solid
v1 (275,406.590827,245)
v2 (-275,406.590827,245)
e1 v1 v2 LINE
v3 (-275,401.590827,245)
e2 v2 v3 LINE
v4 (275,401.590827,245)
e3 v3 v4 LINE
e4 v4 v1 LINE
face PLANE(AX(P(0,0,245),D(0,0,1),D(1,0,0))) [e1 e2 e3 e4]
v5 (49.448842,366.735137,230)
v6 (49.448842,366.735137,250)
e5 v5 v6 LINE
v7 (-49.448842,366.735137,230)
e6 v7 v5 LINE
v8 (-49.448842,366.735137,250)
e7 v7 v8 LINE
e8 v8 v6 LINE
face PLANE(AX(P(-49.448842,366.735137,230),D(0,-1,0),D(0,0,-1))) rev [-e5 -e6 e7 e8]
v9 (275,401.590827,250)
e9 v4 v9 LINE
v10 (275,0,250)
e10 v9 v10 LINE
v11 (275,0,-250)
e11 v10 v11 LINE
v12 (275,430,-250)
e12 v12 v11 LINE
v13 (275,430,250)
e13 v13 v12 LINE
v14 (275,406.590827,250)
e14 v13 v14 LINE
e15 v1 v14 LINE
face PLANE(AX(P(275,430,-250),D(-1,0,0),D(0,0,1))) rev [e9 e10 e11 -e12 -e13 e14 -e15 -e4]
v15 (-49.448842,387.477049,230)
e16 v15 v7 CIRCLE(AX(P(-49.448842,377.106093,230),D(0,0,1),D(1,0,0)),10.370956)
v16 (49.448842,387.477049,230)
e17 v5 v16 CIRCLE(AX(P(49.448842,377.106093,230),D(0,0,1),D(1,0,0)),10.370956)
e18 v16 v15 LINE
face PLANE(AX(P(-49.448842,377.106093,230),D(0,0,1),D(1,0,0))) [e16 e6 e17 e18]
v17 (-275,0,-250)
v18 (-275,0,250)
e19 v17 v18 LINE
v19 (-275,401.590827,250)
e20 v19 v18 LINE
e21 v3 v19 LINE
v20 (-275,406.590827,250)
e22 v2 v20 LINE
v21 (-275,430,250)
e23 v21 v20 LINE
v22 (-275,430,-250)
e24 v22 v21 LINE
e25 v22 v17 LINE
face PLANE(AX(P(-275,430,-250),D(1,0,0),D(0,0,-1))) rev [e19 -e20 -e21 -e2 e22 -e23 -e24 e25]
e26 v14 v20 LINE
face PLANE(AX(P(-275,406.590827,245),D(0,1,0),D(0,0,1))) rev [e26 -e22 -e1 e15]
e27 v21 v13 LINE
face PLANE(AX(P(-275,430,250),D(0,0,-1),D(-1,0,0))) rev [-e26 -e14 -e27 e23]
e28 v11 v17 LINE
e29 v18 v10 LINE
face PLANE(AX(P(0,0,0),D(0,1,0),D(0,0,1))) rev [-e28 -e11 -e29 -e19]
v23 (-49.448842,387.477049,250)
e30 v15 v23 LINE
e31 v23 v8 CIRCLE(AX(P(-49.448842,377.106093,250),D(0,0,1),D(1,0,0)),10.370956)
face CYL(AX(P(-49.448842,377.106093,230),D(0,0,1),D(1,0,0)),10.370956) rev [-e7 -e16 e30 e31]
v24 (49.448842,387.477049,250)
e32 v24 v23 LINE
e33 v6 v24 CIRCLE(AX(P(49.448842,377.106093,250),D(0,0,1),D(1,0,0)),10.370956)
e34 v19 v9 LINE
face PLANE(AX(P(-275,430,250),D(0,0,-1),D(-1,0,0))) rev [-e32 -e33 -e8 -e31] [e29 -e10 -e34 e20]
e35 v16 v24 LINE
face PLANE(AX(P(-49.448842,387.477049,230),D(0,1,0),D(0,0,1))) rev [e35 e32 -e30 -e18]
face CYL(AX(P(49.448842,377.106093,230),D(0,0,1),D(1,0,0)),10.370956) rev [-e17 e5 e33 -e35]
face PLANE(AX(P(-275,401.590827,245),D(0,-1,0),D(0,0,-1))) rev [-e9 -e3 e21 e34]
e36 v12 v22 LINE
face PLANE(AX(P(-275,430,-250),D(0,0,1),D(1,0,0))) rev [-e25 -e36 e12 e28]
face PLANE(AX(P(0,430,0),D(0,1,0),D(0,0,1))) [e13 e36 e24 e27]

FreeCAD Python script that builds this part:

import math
import FreeCAD as App
import Part
import Sketcher


def add_polygon(sketch, points):
    """Adds a closed chain of lines whose ends are joined by coincident constraints."""
    first, n = sketch.GeometryCount, len(points)
    for a, b in zip(points, points[1:] + points[:1]):
        sketch.addGeometry(Part.LineSegment(App.Vector(*a, 0), App.Vector(*b, 0)), False)
    for i in range(n):
        sketch.addConstraint(Sketcher.Constraint("Coincident", first + i, 2, first + (i + 1) % n, 1))

doc = App.newDocument("Part")
params = doc.addObject("Spreadsheet::Sheet", "Params")
for row, (alias, value) in enumerate([
    ("sketch1_width", "550 mm"),
    ("sketch1_height", "500 mm"),
    ("pad1_length", "430 mm"),
    ("pocket1_length", "20 mm"),
    ("sketch3_width", "550 mm"),
    ("sketch3_height", "5 mm"),
    ("pocket2_length", "5 mm"),
], start=1):
    params.set(f"A{row}", alias)
    params.set(f"B{row}", "=" + value)
    params.setAlias(f"B{row}", alias)

body = doc.addObject("PartDesign::Body", "Body")

sketch1 = body.newObject("Sketcher::SketchObject", "Sketch")
sketch1.AttachmentSupport = (doc.getObject("XZ_Plane"), [""])
sketch1.MapMode = "FlatFace"
add_polygon(sketch1, [(-275, -250), (-275, 250), (275, 250), (275, -250)])
sketch1.addConstraint([
    Sketcher.Constraint("Vertical", 0),
    Sketcher.Constraint("Horizontal", 1),
    Sketcher.Constraint("Vertical", 2),
    Sketcher.Constraint("Horizontal", 3),
    Sketcher.Constraint("Symmetric", 0, 2, 2, 2, -1, 1),
    Sketcher.Constraint("DistanceX", 1, 1, 1, 2, 550.0),
    Sketcher.Constraint("DistanceY", 0, 1, 0, 2, 500.0),
])
sketch1.setExpression("Constraints[9]", "Params.sketch1_width")
sketch1.setExpression("Constraints[10]", "Params.sketch1_height")
pad1 = body.newObject("PartDesign::Pad", "Pad")
pad1.Profile = sketch1
pad1.setExpression("Length", "Params.pad1_length")
pad1.Reversed = True

sketch2 = body.newObject("Sketcher::SketchObject", "Sketch001")
sketch2.AttachmentSupport = (doc.getObject("XY_Plane"), [""])
sketch2.MapMode = "FlatFace"
sketch2.AttachmentOffset = App.Placement(App.Vector(0, 0, 250), App.Rotation())
sketch2.addGeometry([
    Part.LineSegment(App.Vector(49, 387, 0), App.Vector(-49, 387, 0)),
    Part.ArcOfCircle(Part.Circle(App.Vector(-49, 377, 0), App.Vector(0, 0, 1), 10), math.radians(90), math.radians(270)),
    Part.LineSegment(App.Vector(-49, 367, 0), App.Vector(49, 367, 0)),
    Part.ArcOfCircle(Part.Circle(App.Vector(49, 377, 0), App.Vector(0, 0, 1), 10), math.radians(-90), math.radians(90)),
], False)
sketch2.addConstraint([
    Sketcher.Constraint("Tangent", 0, 2, 1, 1),
    Sketcher.Constraint("Tangent", 1, 2, 2, 1),
    Sketcher.Constraint("Tangent", 2, 2, 3, 1),
    Sketcher.Constraint("Tangent", 3, 2, 0, 1),
    Sketcher.Constraint("Horizontal", 0),
    Sketcher.Constraint("Horizontal", 2),
    Sketcher.Constraint("Radius", 1, 10.370956),
    Sketcher.Constraint("DistanceX", 0, 2, 0, 1, 98.897684),
    Sketcher.Constraint("DistanceY", -1, 1, 0, 2, 387.477049),
    Sketcher.Constraint("DistanceX", 1, 3, -1, 1, 49.448842),
])
pocket1 = body.newObject("PartDesign::Pocket", "Pocket")
pocket1.Profile = sketch2
pocket1.setExpression("Length", "Params.pocket1_length")

sketch3 = body.newObject("Sketcher::SketchObject", "Sketch002")
sketch3.AttachmentSupport = (doc.getObject("XY_Plane"), [""])
sketch3.MapMode = "FlatFace"
sketch3.AttachmentOffset = App.Placement(App.Vector(0, 0, 250), App.Rotation())
add_polygon(sketch3, [(-275, 407), (-275, 402), (275, 402), (275, 407)])
sketch3.addConstraint([
    Sketcher.Constraint("Vertical", 0),
    Sketcher.Constraint("Horizontal", 1),
    Sketcher.Constraint("Vertical", 2),
    Sketcher.Constraint("Horizontal", 3),
    Sketcher.Constraint("DistanceX", 1, 1, 1, 2, 550.0),
    Sketcher.Constraint("DistanceY", 0, 2, 0, 1, 5.0),
    Sketcher.Constraint("DistanceX", 0, 2, -1, 1, 275.0),
    Sketcher.Constraint("DistanceY", -1, 1, 0, 2, 401.590827),
])
sketch3.setExpression("Constraints[8]", "Params.sketch3_width")
sketch3.setExpression("Constraints[9]", "Params.sketch3_height")
pocket2 = body.newObject("PartDesign::Pocket", "Pocket001")
pocket2.Profile = sketch3
pocket2.setExpression("Length", "Params.pocket2_length")

doc.recompute()
